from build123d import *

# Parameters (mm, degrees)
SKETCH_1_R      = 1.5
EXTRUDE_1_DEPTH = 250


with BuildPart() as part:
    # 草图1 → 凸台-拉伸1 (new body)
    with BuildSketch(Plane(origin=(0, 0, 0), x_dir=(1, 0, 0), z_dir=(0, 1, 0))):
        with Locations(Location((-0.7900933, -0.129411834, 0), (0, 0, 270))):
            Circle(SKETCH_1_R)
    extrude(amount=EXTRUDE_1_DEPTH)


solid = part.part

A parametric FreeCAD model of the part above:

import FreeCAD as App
import Part
import Sketcher

doc = App.newDocument("Part")
params = doc.addObject("Spreadsheet::Sheet", "Params")
for row, (alias, value) in enumerate([
    ("sketch1_diameter", "3 mm"),
    ("pad1_length", "250 mm"),
], start=1):
    params.set(f"A{row}", alias)
    params.set(f"B{row}", "=" + value)
    params.setAlias(f"B{row}", alias)

body = doc.addObject("PartDesign::Body", "Body")

sketch1 = doc.addObject("Sketcher::SketchObject", "Sketch")
body.addObject(sketch1)
sketch1.AttachmentSupport = (doc.XZ_Plane, [""])
sketch1.MapMode = "FlatFace"
sketch1.addGeometry(Part.Circle(App.Vector(-0.8, 0.1, 0), App.Vector(0, 0, 1), 1.5), False)
sketch1.addConstraint(Sketcher.Constraint("Diameter", 0, 3.0))
sketch1.addConstraint(Sketcher.Constraint("DistanceY", -1, 1, 0, 3, 0.129412))
sketch1.addConstraint(Sketcher.Constraint("DistanceX", 0, 3, -1, 1, 0.790093))
sketch1.setExpression("Constraints[0]", "Params.sketch1_diameter")
pad1 = doc.addObject("PartDesign::Pad", "Pad")
body.addObject(pad1)
pad1.Profile = sketch1
pad1.setExpression("Length", "Params.pad1_length")
pad1.Reversed = True

doc.recompute()
